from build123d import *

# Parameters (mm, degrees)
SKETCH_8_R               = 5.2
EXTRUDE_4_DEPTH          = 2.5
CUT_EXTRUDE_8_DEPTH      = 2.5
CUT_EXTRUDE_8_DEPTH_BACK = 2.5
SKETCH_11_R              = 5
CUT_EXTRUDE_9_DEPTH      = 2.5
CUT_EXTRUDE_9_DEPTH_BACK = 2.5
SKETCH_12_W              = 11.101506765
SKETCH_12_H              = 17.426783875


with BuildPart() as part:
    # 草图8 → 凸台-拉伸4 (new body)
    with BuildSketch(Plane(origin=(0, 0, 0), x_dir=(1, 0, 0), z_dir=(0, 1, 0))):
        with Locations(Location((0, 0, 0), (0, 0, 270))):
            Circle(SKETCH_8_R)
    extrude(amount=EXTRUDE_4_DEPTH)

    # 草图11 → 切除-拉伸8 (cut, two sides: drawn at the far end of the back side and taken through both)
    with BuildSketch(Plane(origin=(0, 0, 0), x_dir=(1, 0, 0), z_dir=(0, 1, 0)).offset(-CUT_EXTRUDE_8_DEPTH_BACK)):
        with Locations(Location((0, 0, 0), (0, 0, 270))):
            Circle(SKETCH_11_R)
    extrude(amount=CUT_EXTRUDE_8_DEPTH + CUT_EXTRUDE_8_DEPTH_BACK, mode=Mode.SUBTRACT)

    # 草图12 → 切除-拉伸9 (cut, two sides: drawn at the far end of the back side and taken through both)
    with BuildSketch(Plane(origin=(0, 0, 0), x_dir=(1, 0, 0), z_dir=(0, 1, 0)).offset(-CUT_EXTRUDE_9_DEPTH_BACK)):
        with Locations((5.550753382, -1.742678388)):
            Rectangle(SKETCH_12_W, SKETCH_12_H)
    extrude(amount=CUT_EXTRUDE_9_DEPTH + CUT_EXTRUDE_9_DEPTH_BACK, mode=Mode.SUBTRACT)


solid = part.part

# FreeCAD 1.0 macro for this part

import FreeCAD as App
import Part
import Sketcher
from FreeCAD import Vector

doc = App.newDocument("Part")
body = doc.addObject("PartDesign::Body", "Body")

sketch1 = doc.addObject("Sketcher::SketchObject", "Sketch")
body.addObject(sketch1)
sketch1.AttachmentSupport = (doc.XZ_Plane, [""])
sketch1.MapMode = "FlatFace"
sketch1.addGeometry(Part.Circle(Vector(0, 0, 0), Vector(0, 0, 1), 5), False)
sketch1.addConstraint([
    Sketcher.Constraint("Coincident", 0, 3, -1, 1),
    Sketcher.Constraint("Diameter", 0, 10.4),
])
pad1 = doc.addObject("PartDesign::Pad", "Pad")
body.addObject(pad1)
pad1.Profile = sketch1
pad1.Length = 2.5
pad1.Reversed = True

sketch2 = doc.addObject("Sketcher::SketchObject", "Sketch001")
body.addObject(sketch2)
sketch2.AttachmentSupport = (doc.XZ_Plane, [""])
sketch2.MapMode = "FlatFace"
sketch2.addGeometry(Part.Circle(Vector(0, 0, 0), Vector(0, 0, 1), 5), False)
sketch2.addConstraint([
    Sketcher.Constraint("Coincident", 0, 3, -1, 1),
    Sketcher.Constraint("Diameter", 0, 10.0),
])
pocket1 = doc.addObject("PartDesign::Pocket", "Pocket")
body.addObject(pocket1)
pocket1.Profile = sketch2
pocket1.Type = "ThroughAll"
pocket1.Midplane = True

sketch3 = doc.addObject("Sketcher::SketchObject", "Sketch002")
body.addObject(sketch3)
sketch3.AttachmentSupport = (doc.XZ_Plane, [""])
sketch3.MapMode = "FlatFace"
sketch3.addGeometry([
    Part.LineSegment(Vector(0, -7, 0), Vector(0, 10, 0)),
    Part.LineSegment(Vector(0, 10, 0), Vector(11, 10, 0)),
    Part.LineSegment(Vector(11, 10, 0), Vector(11, -7, 0)),
    Part.LineSegment(Vector(11, -7, 0), Vector(0, -7, 0)),
], False)
sketch3.addConstraint([
    Sketcher.Constraint("Coincident", 0, 2, 1, 1),
    Sketcher.Constraint("Coincident", 1, 2, 2, 1),
    Sketcher.Constraint("Coincident", 2, 2, 3, 1),
    Sketcher.Constraint("Coincident", 3, 2, 0, 1),
    Sketcher.Constraint("Vertical", 0),
    Sketcher.Constraint("Horizontal", 1),
    Sketcher.Constraint("Vertical", 2),
    Sketcher.Constraint("Horizontal", 3),
    Sketcher.Constraint("PointOnObject", 0, 2, -2),
    Sketcher.Constraint("DistanceX", 1, 1, 1, 2, 11.101507),
    Sketcher.Constraint("DistanceY", 0, 1, 0, 2, 17.426784),
    Sketcher.Constraint("DistanceY", -1, 1, 0, 2, 10.45607),
])
pocket2 = doc.addObject("PartDesign::Pocket", "Pocket001")
body.addObject(pocket2)
pocket2.Profile = sketch3
pocket2.Type = "ThroughAll"
pocket2.Midplane = True

doc.recompute()
